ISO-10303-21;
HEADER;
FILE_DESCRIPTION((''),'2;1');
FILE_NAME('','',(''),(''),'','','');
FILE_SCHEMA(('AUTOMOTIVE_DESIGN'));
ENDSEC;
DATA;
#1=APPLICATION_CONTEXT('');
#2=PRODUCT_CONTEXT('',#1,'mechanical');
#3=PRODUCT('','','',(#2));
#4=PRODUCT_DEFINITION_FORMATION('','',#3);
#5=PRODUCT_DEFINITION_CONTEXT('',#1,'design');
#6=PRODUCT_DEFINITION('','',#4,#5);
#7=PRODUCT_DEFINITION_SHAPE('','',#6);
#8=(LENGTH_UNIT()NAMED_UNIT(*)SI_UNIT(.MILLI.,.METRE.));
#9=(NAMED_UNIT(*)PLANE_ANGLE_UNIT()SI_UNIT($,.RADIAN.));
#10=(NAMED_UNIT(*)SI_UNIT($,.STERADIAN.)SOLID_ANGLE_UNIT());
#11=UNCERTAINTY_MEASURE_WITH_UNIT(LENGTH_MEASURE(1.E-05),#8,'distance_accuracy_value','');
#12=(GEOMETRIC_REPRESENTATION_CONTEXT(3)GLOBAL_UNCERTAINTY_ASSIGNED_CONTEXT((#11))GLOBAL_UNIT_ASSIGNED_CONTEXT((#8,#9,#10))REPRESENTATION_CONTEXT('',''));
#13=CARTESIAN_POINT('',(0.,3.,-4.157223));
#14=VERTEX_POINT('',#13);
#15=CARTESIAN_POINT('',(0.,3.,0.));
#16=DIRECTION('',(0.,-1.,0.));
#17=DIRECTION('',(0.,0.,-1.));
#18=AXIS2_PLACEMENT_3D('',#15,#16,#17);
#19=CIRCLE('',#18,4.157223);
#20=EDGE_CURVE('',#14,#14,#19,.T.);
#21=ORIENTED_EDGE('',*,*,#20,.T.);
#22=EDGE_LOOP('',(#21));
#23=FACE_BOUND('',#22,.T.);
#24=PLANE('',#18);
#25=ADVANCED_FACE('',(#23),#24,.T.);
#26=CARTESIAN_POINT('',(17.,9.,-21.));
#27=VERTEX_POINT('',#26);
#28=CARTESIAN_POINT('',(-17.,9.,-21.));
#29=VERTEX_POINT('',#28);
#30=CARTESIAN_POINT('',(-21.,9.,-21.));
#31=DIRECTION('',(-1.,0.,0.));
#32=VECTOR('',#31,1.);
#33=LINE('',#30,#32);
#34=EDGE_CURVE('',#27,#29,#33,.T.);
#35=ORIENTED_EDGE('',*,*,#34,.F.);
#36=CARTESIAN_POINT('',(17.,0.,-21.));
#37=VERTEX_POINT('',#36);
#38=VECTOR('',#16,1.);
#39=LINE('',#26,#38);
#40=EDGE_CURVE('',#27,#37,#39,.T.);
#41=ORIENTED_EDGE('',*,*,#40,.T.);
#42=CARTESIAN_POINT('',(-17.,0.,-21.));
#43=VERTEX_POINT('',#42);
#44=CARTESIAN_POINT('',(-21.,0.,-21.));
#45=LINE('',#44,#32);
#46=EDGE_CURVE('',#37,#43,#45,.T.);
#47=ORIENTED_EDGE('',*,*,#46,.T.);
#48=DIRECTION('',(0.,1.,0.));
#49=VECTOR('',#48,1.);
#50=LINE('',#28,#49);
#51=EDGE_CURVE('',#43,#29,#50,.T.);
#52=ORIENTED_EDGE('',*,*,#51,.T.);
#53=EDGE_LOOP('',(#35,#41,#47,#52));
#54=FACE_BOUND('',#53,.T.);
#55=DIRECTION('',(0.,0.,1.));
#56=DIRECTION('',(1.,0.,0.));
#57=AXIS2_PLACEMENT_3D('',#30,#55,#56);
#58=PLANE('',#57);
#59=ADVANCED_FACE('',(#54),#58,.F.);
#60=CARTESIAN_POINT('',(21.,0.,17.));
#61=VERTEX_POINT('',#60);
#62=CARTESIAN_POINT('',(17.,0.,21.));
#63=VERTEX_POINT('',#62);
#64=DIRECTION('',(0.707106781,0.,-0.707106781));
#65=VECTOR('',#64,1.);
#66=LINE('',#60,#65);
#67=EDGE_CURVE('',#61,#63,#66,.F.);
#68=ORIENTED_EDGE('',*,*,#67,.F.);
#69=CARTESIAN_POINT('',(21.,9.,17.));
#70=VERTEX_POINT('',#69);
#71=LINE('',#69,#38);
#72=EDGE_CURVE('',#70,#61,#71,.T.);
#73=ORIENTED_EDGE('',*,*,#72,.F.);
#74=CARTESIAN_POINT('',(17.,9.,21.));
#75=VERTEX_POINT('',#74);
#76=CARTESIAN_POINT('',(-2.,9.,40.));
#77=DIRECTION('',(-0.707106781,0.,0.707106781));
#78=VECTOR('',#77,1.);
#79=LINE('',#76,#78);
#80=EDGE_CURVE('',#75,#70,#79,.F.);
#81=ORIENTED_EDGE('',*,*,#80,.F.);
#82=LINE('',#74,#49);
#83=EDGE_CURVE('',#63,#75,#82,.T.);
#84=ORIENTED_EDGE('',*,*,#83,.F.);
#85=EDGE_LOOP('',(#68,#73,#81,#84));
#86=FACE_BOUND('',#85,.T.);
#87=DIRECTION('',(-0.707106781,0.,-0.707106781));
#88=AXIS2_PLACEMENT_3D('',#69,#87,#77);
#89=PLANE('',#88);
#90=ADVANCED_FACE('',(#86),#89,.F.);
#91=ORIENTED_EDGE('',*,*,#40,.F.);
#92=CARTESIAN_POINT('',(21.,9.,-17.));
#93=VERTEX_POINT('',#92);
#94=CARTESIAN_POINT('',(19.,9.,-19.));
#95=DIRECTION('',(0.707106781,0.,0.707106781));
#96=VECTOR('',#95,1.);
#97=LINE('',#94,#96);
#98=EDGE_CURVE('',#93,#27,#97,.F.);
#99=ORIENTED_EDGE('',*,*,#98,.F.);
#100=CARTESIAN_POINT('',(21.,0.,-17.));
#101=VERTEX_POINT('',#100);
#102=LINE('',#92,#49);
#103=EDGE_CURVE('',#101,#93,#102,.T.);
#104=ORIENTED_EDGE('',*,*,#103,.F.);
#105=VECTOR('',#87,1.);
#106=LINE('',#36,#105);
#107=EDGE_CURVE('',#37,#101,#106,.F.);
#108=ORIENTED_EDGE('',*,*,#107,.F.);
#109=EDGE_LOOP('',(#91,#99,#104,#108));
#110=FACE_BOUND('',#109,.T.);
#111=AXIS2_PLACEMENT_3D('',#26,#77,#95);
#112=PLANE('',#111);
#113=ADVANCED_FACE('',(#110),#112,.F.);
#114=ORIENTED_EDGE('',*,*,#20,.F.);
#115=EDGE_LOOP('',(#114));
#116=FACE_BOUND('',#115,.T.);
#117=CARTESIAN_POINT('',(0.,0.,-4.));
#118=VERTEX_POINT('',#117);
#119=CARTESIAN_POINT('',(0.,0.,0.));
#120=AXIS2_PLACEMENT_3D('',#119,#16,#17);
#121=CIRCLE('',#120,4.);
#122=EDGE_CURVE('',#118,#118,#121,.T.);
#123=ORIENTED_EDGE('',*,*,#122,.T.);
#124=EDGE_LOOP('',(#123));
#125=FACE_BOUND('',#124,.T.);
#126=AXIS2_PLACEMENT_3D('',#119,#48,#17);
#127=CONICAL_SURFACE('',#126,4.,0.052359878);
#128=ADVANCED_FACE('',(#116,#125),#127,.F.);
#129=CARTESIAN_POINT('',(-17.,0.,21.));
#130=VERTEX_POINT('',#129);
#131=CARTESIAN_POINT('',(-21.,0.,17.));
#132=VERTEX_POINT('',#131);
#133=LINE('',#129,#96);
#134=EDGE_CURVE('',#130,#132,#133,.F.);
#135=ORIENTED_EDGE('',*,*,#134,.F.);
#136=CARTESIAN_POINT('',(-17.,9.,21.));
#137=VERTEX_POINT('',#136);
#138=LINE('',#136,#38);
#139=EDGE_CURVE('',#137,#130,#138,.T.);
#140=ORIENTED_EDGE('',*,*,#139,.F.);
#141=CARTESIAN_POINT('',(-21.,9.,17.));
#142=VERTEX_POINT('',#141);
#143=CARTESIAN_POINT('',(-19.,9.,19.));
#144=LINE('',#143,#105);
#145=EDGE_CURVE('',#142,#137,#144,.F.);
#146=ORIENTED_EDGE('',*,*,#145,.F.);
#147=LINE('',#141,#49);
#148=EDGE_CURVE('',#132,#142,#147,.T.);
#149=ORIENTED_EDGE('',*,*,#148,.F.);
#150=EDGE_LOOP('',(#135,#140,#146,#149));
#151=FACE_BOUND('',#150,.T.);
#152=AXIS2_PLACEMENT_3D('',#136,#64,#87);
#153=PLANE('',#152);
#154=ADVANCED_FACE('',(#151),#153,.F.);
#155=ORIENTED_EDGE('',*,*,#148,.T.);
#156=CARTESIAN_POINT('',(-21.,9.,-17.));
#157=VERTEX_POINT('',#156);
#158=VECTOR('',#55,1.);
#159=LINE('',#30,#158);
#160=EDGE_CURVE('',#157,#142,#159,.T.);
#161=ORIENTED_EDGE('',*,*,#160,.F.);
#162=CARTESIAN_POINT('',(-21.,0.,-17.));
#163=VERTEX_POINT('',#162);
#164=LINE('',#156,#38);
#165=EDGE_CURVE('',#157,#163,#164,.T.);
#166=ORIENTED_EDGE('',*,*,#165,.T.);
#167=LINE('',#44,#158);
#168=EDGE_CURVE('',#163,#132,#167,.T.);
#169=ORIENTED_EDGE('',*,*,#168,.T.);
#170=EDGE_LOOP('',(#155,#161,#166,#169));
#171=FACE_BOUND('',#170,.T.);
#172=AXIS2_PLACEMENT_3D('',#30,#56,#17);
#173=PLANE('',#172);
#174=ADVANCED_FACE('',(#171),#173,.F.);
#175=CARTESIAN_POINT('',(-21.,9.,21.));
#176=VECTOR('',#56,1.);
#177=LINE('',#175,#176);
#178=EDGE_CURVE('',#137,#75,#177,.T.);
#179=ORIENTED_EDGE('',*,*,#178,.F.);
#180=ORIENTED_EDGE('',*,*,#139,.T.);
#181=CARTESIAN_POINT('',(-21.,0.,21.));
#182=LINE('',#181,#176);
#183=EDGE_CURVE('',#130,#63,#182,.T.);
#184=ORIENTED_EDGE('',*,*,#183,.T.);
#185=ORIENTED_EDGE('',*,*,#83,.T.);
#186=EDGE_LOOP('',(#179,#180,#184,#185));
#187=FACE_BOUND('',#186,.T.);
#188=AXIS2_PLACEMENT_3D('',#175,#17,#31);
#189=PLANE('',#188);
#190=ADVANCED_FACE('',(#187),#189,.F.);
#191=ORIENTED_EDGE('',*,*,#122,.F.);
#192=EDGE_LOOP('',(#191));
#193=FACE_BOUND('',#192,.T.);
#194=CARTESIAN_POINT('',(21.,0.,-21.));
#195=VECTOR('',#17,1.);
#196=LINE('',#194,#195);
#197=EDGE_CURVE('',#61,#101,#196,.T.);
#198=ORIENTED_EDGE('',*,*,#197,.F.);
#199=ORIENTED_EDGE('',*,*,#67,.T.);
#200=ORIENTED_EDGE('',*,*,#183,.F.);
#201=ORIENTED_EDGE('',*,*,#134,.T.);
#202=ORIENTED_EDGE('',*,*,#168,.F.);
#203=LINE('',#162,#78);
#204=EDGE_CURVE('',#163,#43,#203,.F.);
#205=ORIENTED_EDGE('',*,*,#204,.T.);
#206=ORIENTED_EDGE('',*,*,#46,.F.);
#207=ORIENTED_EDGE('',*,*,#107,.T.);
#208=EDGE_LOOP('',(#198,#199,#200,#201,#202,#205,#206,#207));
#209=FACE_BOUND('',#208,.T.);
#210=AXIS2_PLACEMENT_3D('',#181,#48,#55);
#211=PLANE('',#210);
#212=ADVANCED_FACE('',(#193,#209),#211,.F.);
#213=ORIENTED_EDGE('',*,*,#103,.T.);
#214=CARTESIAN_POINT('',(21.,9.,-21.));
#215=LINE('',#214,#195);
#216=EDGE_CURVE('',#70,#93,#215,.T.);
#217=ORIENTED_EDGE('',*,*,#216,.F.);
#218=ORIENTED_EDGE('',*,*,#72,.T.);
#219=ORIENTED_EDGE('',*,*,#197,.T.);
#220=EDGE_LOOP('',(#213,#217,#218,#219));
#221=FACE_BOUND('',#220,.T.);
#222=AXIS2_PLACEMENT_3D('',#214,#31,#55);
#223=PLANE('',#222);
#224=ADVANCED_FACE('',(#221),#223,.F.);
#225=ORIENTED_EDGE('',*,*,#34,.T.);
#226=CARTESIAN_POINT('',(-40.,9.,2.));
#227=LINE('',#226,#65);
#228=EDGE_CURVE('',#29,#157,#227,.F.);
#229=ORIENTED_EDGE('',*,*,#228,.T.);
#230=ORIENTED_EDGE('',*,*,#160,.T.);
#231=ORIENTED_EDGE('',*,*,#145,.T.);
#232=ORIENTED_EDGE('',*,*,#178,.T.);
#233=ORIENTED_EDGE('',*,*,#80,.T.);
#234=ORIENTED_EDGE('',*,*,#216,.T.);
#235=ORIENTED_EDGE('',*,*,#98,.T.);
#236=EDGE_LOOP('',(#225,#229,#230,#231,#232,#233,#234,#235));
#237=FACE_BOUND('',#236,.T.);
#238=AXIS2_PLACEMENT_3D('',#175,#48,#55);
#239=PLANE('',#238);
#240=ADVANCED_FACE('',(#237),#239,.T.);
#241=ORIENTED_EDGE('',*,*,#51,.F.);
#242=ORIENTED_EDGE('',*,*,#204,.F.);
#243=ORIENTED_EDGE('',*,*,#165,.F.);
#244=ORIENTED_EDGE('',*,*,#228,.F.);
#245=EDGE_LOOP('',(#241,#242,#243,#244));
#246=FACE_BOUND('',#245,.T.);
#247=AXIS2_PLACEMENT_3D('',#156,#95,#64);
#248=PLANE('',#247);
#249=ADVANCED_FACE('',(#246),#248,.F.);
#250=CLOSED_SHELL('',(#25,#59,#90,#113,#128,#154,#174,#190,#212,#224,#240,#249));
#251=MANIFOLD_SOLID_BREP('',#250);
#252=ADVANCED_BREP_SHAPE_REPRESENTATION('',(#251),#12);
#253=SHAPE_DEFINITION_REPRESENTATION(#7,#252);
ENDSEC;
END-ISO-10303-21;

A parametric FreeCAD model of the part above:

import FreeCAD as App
import Part
import Sketcher

V = App.Vector


def edges_at(feature, points):
    """Names of the edges that pass closest to the given points."""
    edges = feature.Shape.Edges
    near = lambda p: min(range(len(edges)), key=lambda i: edges[i].distToShape(Part.Vertex(*p))[0])
    return sorted({f"Edge{near(p) + 1}" for p in points})


def add_polygon(sketch, points):
    """Adds a closed chain of lines whose ends are joined by coincident constraints."""
    first, n = sketch.GeometryCount, len(points)
    for a, b in zip(points, points[1:] + points[:1]):
        sketch.addGeometry(Part.LineSegment(App.Vector(*a, 0), App.Vector(*b, 0)), False)
    for i in range(n):
        sketch.addConstraint(Sketcher.Constraint("Coincident", first + i, 2, first + (i + 1) % n, 1))

doc = App.newDocument("Part")
body = doc.addObject("PartDesign::Body", "Body")

sketch1 = body.newObject("Sketcher::SketchObject", "Sketch")
sketch1.AttachmentSupport = (doc.getObject("XZ_Plane"), [""])
sketch1.MapMode = "FlatFace"
add_polygon(sketch1, [(-21, -21), (-21, 21), (21, 21), (21, -21)])
sketch1.addConstraint([
    Sketcher.Constraint("Vertical", 0),
    Sketcher.Constraint("Horizontal", 1),
    Sketcher.Constraint("Vertical", 2),
    Sketcher.Constraint("Horizontal", 3),
    Sketcher.Constraint("Symmetric", 0, 2, 2, 2, -1, 1),
    Sketcher.Constraint("Equal", 3, 0),
    Sketcher.Constraint("DistanceX", 1, 1, 1, 2, 42.0),
])
pad1 = body.newObject("PartDesign::Pad", "Pad")
pad1.Profile = sketch1
pad1.Length = 9
pad1.Reversed = True
doc.recompute()

chamfer = body.newObject("PartDesign::Chamfer", "Chamfer")
chamfer.Base = (pad1, edges_at(pad1, [
    (-21, 4.5, -21),
    (21, 4.5, -21),
    (21, 4.5, 21),
    (-21, 4.5, 21),
]))
chamfer.Size = 4

sketch2 = body.newObject("Sketcher::SketchObject", "Sketch001")
sketch2.AttachmentSupport = (doc.getObject("XZ_Plane"), [""])
sketch2.MapMode = "FlatFace"
sketch2.addGeometry(Part.Circle(V(0, 0, 0), V(0, 0, 1), 4), False)
sketch2.addConstraint([
    Sketcher.Constraint("Coincident", 0, 3, -1, 1),
    Sketcher.Constraint("Diameter", 0, 8.0),
])
pocket1 = body.newObject("PartDesign::Pocket", "Pocket")
pocket1.Profile = sketch2
pocket1.Length = 3
pocket1.TaperAngle = 3

doc.recompute()
